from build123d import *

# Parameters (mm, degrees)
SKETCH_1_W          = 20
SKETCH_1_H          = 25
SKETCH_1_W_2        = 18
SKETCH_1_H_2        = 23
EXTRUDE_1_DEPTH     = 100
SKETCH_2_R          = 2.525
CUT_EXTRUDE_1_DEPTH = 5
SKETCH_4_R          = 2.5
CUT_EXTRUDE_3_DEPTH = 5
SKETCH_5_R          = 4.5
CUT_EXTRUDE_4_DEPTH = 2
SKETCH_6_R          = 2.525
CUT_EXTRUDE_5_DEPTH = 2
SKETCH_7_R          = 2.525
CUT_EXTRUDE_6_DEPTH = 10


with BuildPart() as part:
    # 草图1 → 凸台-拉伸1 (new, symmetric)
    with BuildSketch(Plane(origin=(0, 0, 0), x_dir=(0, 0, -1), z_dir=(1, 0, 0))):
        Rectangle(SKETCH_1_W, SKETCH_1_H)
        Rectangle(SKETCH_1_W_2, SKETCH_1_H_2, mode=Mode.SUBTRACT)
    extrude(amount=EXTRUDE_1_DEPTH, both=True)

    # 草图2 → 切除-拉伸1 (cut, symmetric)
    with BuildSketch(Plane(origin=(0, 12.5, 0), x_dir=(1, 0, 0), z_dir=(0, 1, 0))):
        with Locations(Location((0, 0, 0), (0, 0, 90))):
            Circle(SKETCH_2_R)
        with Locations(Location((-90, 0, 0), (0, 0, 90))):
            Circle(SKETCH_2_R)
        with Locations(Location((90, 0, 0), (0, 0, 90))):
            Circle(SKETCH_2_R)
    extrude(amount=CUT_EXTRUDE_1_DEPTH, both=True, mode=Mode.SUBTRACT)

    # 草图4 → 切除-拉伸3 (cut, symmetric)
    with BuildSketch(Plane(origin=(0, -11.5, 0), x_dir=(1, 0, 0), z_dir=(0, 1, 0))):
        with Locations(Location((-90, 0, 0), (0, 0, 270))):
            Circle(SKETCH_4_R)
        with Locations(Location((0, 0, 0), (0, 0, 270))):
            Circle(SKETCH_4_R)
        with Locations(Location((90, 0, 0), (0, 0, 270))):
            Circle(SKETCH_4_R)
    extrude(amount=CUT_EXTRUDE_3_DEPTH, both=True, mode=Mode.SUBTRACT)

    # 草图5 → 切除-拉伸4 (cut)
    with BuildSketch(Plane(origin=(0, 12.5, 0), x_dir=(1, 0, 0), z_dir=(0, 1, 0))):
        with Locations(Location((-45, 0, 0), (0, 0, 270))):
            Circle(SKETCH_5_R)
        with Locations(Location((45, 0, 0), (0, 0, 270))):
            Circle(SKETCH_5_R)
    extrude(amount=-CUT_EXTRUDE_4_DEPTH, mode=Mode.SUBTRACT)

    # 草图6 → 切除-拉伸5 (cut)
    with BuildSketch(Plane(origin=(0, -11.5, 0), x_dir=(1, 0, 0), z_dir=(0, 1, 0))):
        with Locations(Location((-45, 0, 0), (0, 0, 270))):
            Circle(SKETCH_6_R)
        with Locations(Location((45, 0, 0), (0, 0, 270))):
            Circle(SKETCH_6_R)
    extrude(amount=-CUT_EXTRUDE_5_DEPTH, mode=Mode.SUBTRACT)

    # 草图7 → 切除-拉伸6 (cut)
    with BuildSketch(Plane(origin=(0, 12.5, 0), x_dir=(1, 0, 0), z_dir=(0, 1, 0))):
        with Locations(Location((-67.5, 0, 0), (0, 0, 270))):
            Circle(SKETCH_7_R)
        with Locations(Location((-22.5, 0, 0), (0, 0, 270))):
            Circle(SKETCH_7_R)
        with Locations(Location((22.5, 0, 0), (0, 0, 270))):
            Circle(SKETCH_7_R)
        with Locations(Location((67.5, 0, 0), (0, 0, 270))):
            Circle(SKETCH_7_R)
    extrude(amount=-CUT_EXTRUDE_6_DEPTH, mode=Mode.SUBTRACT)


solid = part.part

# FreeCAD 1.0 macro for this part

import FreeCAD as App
import Part
import Sketcher
Q = App.Units.Quantity

doc = App.newDocument("Part")
body = doc.addObject("PartDesign::Body", "Body")

sketch1 = body.newObject("Sketcher::SketchObject", "Sketch")
sketch1.AttachmentSupport = (doc.getObject("YZ_Plane"), [""])
sketch1.MapMode = "FlatFace"
sketch1.addGeometry(Part.LineSegment(App.Vector(12.5, 10, 0), App.Vector(-12.5, 10, 0)), False)
sketch1.addGeometry(Part.LineSegment(App.Vector(-12.5, 10, 0), App.Vector(-12.5, -10, 0)), False)
sketch1.addGeometry(Part.LineSegment(App.Vector(-12.5, -10, 0), App.Vector(12.5, -10, 0)), False)
sketch1.addGeometry(Part.LineSegment(App.Vector(12.5, -10, 0), App.Vector(12.5, 10, 0)), False)
sketch1.addGeometry(Part.LineSegment(App.Vector(-11.5, -9, 0), App.Vector(-11.5, 9, 0)), False)
sketch1.addGeometry(Part.LineSegment(App.Vector(-11.5, 9, 0), App.Vector(11.5, 9, 0)), False)
sketch1.addGeometry(Part.LineSegment(App.Vector(11.5, 9, 0), App.Vector(11.5, -9, 0)), False)
sketch1.addGeometry(Part.LineSegment(App.Vector(11.5, -9, 0), App.Vector(-11.5, -9, 0)), False)
sketch1.addConstraint(Sketcher.Constraint("Coincident", 0, 2, 1, 1))
sketch1.addConstraint(Sketcher.Constraint("Coincident", 1, 2, 2, 1))
sketch1.addConstraint(Sketcher.Constraint("Coincident", 2, 2, 3, 1))
sketch1.addConstraint(Sketcher.Constraint("Coincident", 3, 2, 0, 1))
sketch1.addConstraint(Sketcher.Constraint("Coincident", 4, 2, 5, 1))
sketch1.addConstraint(Sketcher.Constraint("Coincident", 5, 2, 6, 1))
sketch1.addConstraint(Sketcher.Constraint("Coincident", 6, 2, 7, 1))
sketch1.addConstraint(Sketcher.Constraint("Coincident", 7, 2, 4, 1))
sketch1.addConstraint(Sketcher.Constraint("Horizontal", 0))
sketch1.addConstraint(Sketcher.Constraint("Vertical", 1))
sketch1.addConstraint(Sketcher.Constraint("Horizontal", 2))
sketch1.addConstraint(Sketcher.Constraint("Vertical", 3))
sketch1.addConstraint(Sketcher.Constraint("Vertical", 4))
sketch1.addConstraint(Sketcher.Constraint("Horizontal", 5))
sketch1.addConstraint(Sketcher.Constraint("Vertical", 6))
sketch1.addConstraint(Sketcher.Constraint("Horizontal", 7))
sketch1.addConstraint(Sketcher.Constraint("Symmetric", 0, 2, 2, 2, -1, 1))
sketch1.addConstraint(Sketcher.Constraint("Symmetric", 4, 2, 6, 2, -1, 1))
sketch1.addConstraint(Sketcher.Constraint("DistanceX", 0, 2, 0, 1, Q("25 mm")))
sketch1.addConstraint(Sketcher.Constraint("DistanceX", 5, 1, 5, 2, Q("23 mm")))
sketch1.addConstraint(Sketcher.Constraint("DistanceY", 1, 2, 1, 1, Q("20 mm")))
sketch1.addConstraint(Sketcher.Constraint("DistanceY", 4, 1, 4, 2, Q("18 mm")))
pad1 = body.newObject("PartDesign::Pad", "Pad")
pad1.Profile = sketch1
pad1.Length = 200
pad1.Midplane = True

sketch2 = body.newObject("Sketcher::SketchObject", "Sketch001")
sketch2.AttachmentSupport = (doc.getObject("XZ_Plane"), [""])
sketch2.MapMode = "FlatFace"
sketch2.AttachmentOffset = App.Placement(App.Vector(0, 0, -12.5), App.Rotation())
sketch2.addGeometry(Part.Circle(App.Vector(0, 0, 0), App.Vector(0, 0, 1), 2.525), False)
sketch2.addGeometry(Part.Circle(App.Vector(-90, 0, 0), App.Vector(0, 0, 1), 2.525), False)
sketch2.addGeometry(Part.Circle(App.Vector(90, 0, 0), App.Vector(0, 0, 1), 2.525), False)
sketch2.addConstraint(Sketcher.Constraint("Coincident", 0, 3, -1, 1))
sketch2.addConstraint(Sketcher.Constraint("Equal", 0, 1))
sketch2.addConstraint(Sketcher.Constraint("Equal", 1, 2))
sketch2.addConstraint(Sketcher.Constraint("Symmetric", 1, 3, 2, 3, -1, 1))
sketch2.addConstraint(Sketcher.Constraint("PointOnObject", 1, 3, -1))
sketch2.addConstraint(Sketcher.Constraint("Diameter", 0, Q("5.05 mm")))
sketch2.addConstraint(Sketcher.Constraint("DistanceX", 1, 3, -1, 1, Q("90 mm")))
pocket1 = body.newObject("PartDesign::Pocket", "Pocket")
pocket1.Profile = sketch2
pocket1.Length = 10
pocket1.Midplane = True

sketch3 = body.newObject("Sketcher::SketchObject", "Sketch002")
sketch3.AttachmentSupport = (doc.getObject("XZ_Plane"), [""])
sketch3.MapMode = "FlatFace"
sketch3.AttachmentOffset = App.Placement(App.Vector(0, 0, 11.5), App.Rotation())
sketch3.addGeometry(Part.Circle(App.Vector(-90, 0, 0), App.Vector(0, 0, 1), 2.5), False)
sketch3.addGeometry(Part.Circle(App.Vector(0, 0, 0), App.Vector(0, 0, 1), 2.5), False)
sketch3.addGeometry(Part.Circle(App.Vector(90, 0, 0), App.Vector(0, 0, 1), 2.5), False)
sketch3.addConstraint(Sketcher.Constraint("Coincident", 1, 3, -1, 1))
sketch3.addConstraint(Sketcher.Constraint("Equal", 0, 1))
sketch3.addConstraint(Sketcher.Constraint("Equal", 1, 2))
sketch3.addConstraint(Sketcher.Constraint("Symmetric", 0, 3, 2, 3, -1, 1))
sketch3.addConstraint(Sketcher.Constraint("PointOnObject", 0, 3, -1))
sketch3.addConstraint(Sketcher.Constraint("Diameter", 0, Q("5 mm")))
sketch3.addConstraint(Sketcher.Constraint("DistanceX", 0, 3, -1, 1, Q("90 mm")))
pocket2 = body.newObject("PartDesign::Pocket", "Pocket001")
pocket2.Profile = sketch3
pocket2.Length = 10
pocket2.Midplane = True

sketch4 = body.newObject("Sketcher::SketchObject", "Sketch003")
sketch4.AttachmentSupport = (doc.getObject("XZ_Plane"), [""])
sketch4.MapMode = "FlatFace"
sketch4.AttachmentOffset = App.Placement(App.Vector(0, 0, -12.5), App.Rotation())
sketch4.addGeometry(Part.Circle(App.Vector(-45, 0, 0), App.Vector(0, 0, 1), 4.5), False)
sketch4.addGeometry(Part.Circle(App.Vector(45, 0, 0), App.Vector(0, 0, 1), 4.5), False)
sketch4.addConstraint(Sketcher.Constraint("Equal", 0, 1))
sketch4.addConstraint(Sketcher.Constraint("Symmetric", 0, 3, 1, 3, -1, 1))
sketch4.addConstraint(Sketcher.Constraint("PointOnObject", 0, 3, -1))
sketch4.addConstraint(Sketcher.Constraint("Diameter", 0, Q("9 mm")))
sketch4.addConstraint(Sketcher.Constraint("DistanceX", 0, 3, -1, 1, Q("45 mm")))
pocket3 = body.newObject("PartDesign::Pocket", "Pocket002")
pocket3.Profile = sketch4
pocket3.Length = 2
pocket3.Reversed = True

sketch5 = body.newObject("Sketcher::SketchObject", "Sketch004")
sketch5.AttachmentSupport = (doc.getObject("XZ_Plane"), [""])
sketch5.MapMode = "FlatFace"
sketch5.AttachmentOffset = App.Placement(App.Vector(0, 0, 11.5), App.Rotation())
sketch5.addGeometry(Part.Circle(App.Vector(-45, 0, 0), App.Vector(0, 0, 1), 2.525), False)
sketch5.addGeometry(Part.Circle(App.Vector(45, 0, 0), App.Vector(0, 0, 1), 2.525), False)
sketch5.addConstraint(Sketcher.Constraint("Equal", 0, 1))
sketch5.addConstraint(Sketcher.Constraint("Symmetric", 0, 3, 1, 3, -1, 1))
sketch5.addConstraint(Sketcher.Constraint("PointOnObject", 0, 3, -1))
sketch5.addConstraint(Sketcher.Constraint("Diameter", 0, Q("5.05 mm")))
sketch5.addConstraint(Sketcher.Constraint("DistanceX", 0, 3, -1, 1, Q("45 mm")))
pocket4 = body.newObject("PartDesign::Pocket", "Pocket003")
pocket4.Profile = sketch5
pocket4.Length = 2
pocket4.Reversed = True

sketch6 = body.newObject("Sketcher::SketchObject", "Sketch005")
sketch6.AttachmentSupport = (doc.getObject("XZ_Plane"), [""])
sketch6.MapMode = "FlatFace"
sketch6.AttachmentOffset = App.Placement(App.Vector(0, 0, -12.5), App.Rotation())
sketch6.addGeometry(Part.Circle(App.Vector(-67.5, 0, 0), App.Vector(0, 0, 1), 2.525), False)
sketch6.addGeometry(Part.Circle(App.Vector(-22.5, 0, 0), App.Vector(0, 0, 1), 2.525), False)
sketch6.addGeometry(Part.Circle(App.Vector(22.5, 0, 0), App.Vector(0, 0, 1), 2.525), False)
sketch6.addGeometry(Part.Circle(App.Vector(67.5, 0, 0), App.Vector(0, 0, 1), 2.525), False)
sketch6.addConstraint(Sketcher.Constraint("Equal", 0, 1))
sketch6.addConstraint(Sketcher.Constraint("Equal", 1, 2))
sketch6.addConstraint(Sketcher.Constraint("Equal", 2, 3))
sketch6.addConstraint(Sketcher.Constraint("Symmetric", 1, 3, 2, 3, -1, 1))
sketch6.addConstraint(Sketcher.Constraint("Symmetric", 0, 3, 3, 3, -1, 1))
sketch6.addConstraint(Sketcher.Constraint("PointOnObject", 0, 3, -1))
sketch6.addConstraint(Sketcher.Constraint("PointOnObject", 1, 3, -1))
sketch6.addConstraint(Sketcher.Constraint("Diameter", 0, Q("5.05 mm")))
sketch6.addConstraint(Sketcher.Constraint("DistanceX", 0, 3, 1, 3, Q("45 mm")))
sketch6.addConstraint(Sketcher.Constraint("DistanceX", 1, 3, 2, 3, Q("45 mm")))
pocket5 = body.newObject("PartDesign::Pocket", "Pocket004")
pocket5.Profile = sketch6
pocket5.Length = 10
pocket5.Reversed = True

doc.recompute()
